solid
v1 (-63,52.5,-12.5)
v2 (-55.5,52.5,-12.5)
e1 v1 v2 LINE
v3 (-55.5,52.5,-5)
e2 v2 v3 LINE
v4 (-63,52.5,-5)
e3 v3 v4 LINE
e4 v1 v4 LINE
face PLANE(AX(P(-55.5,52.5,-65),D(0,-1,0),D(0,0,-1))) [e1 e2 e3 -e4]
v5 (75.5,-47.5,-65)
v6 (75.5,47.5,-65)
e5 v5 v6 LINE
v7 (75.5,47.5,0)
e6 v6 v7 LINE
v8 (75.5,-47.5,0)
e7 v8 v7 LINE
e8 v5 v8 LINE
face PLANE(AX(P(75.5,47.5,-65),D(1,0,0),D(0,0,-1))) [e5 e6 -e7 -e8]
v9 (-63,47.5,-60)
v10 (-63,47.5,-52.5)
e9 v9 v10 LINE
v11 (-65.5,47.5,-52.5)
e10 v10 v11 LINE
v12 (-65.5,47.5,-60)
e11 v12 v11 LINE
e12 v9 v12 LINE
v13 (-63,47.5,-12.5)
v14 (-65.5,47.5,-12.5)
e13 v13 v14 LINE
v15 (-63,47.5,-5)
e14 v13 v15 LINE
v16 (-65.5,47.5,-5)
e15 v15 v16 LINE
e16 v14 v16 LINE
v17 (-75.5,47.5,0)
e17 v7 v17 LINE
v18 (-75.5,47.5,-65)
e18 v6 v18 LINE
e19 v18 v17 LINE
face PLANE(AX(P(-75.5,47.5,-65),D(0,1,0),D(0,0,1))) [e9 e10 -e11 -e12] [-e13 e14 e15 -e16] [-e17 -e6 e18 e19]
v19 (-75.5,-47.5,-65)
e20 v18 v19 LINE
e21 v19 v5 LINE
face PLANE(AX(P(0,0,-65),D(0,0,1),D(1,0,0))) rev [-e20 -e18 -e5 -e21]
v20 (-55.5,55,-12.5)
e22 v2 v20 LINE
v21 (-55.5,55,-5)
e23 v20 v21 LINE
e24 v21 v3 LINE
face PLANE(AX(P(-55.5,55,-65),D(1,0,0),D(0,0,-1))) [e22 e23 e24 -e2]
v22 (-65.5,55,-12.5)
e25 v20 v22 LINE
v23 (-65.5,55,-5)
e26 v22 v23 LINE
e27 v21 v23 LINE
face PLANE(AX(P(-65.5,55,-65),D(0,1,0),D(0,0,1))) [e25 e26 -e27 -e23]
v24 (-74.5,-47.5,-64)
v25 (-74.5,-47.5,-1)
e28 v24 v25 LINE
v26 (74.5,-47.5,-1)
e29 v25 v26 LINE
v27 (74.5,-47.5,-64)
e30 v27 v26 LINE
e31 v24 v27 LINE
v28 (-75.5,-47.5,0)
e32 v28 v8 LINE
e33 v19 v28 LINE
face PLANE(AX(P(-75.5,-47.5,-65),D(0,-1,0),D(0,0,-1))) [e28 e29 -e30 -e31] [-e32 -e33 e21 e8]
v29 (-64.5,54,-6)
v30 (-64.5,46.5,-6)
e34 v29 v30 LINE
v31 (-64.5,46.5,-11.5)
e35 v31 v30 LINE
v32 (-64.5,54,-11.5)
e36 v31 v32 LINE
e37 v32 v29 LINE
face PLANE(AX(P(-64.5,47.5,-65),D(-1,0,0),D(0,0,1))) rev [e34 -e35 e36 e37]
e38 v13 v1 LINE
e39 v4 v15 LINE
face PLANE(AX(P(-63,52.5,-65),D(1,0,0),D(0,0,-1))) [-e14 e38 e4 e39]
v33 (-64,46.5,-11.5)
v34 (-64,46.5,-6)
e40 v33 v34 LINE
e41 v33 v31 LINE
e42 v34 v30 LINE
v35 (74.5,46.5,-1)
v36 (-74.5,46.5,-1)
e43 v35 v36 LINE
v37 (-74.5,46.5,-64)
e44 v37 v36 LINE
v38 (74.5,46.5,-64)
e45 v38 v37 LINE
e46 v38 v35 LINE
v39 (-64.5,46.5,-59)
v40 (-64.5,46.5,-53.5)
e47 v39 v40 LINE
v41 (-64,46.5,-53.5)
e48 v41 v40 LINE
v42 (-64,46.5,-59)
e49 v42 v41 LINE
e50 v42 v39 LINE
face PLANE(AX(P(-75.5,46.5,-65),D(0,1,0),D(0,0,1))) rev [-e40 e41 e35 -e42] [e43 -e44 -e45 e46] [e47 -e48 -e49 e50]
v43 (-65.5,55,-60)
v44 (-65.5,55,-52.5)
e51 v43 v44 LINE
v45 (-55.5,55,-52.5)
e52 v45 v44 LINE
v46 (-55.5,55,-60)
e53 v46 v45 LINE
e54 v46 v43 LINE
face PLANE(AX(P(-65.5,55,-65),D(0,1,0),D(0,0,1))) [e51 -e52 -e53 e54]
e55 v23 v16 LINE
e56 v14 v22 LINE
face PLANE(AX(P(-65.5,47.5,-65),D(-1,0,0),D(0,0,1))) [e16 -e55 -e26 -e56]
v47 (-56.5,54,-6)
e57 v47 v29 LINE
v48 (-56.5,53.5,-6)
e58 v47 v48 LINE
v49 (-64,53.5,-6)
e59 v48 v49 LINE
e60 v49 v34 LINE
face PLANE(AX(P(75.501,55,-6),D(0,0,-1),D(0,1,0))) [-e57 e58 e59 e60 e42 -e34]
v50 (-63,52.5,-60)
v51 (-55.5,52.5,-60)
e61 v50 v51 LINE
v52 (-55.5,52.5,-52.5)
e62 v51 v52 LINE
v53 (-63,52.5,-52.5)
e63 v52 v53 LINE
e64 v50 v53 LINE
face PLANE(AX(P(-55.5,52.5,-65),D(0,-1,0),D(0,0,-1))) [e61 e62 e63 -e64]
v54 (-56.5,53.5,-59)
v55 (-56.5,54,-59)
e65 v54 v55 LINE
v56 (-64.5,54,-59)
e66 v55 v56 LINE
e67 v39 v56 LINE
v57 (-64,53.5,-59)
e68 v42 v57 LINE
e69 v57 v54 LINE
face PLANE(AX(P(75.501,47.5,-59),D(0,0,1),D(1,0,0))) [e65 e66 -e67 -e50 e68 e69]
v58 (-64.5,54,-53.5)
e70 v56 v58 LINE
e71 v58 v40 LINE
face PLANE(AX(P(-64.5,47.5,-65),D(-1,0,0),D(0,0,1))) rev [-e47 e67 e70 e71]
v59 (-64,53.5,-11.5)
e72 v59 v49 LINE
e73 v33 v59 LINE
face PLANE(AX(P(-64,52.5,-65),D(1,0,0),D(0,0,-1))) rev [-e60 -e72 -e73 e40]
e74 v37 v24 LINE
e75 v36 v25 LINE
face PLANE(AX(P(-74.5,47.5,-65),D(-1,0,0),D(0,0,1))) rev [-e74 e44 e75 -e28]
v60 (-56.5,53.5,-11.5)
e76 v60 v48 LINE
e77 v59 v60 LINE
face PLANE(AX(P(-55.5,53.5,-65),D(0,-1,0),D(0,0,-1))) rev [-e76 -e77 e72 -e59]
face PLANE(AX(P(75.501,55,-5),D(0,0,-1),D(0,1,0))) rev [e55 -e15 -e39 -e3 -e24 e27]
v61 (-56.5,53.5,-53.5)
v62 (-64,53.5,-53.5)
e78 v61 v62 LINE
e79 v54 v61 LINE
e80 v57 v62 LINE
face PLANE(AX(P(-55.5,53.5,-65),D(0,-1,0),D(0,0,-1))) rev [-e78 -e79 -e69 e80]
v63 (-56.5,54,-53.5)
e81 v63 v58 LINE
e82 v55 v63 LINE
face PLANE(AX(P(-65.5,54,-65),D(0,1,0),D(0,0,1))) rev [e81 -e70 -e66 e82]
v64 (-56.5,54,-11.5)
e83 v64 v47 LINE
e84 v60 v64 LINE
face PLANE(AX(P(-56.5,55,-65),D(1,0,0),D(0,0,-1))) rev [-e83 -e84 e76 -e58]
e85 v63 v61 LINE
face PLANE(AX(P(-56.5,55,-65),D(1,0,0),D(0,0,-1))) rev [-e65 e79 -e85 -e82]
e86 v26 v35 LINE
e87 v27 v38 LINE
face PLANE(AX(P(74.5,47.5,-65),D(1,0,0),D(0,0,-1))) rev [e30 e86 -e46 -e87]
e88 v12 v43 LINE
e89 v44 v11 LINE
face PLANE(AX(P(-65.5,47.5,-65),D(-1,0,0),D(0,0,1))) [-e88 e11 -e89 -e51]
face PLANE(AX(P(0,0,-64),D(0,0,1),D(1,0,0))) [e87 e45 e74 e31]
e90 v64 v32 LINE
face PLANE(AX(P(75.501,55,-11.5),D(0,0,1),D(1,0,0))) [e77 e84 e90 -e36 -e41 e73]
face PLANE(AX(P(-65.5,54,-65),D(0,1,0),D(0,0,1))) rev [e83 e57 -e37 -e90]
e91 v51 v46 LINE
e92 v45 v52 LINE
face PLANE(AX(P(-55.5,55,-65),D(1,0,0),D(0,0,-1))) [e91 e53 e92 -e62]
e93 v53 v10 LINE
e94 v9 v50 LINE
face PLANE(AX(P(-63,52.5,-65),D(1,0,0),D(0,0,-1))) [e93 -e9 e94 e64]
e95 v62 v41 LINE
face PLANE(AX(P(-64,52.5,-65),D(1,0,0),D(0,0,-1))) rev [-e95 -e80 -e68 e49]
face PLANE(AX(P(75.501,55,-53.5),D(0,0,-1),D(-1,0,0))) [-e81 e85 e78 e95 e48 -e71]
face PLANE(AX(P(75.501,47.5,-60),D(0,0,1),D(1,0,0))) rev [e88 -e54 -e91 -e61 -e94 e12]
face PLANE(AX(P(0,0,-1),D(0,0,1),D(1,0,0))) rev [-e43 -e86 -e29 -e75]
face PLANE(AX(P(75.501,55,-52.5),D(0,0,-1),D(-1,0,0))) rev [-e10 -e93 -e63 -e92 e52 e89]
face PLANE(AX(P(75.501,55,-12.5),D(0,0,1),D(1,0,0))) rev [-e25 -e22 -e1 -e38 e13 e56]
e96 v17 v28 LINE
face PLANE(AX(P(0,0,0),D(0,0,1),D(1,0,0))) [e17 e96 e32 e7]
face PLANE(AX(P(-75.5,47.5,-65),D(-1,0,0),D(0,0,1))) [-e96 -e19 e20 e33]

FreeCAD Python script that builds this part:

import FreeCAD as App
import Part
import Sketcher
Q = App.Units.Quantity


def faces_at(feature, points):
    """Names of the faces that lie closest to the given points."""
    faces = feature.Shape.Faces
    near = lambda p: min(range(len(faces)), key=lambda i: faces[i].distToShape(Part.Vertex(*p))[0])
    return sorted({f"Face{near(p) + 1}" for p in points})

doc = App.newDocument("Part")
body = doc.addObject("PartDesign::Body", "Body")

# Sketch on XY plane
sketch1 = body.newObject("Sketcher::SketchObject", "Sketch")
sketch1.AttachmentSupport = (doc.getObject("XY_Plane"), [""])
sketch1.MapMode = "FlatFace"
sketch1.addGeometry([
    Part.LineSegment(App.Vector(-76, 48, 0), App.Vector(-76, -48, 0)),
    Part.LineSegment(App.Vector(-76, -48, 0), App.Vector(76, -48, 0)),
    Part.LineSegment(App.Vector(76, -48, 0), App.Vector(76, 48, 0)),
    Part.LineSegment(App.Vector(76, 48, 0), App.Vector(-76, 48, 0)),
], False)
sketch1.addConstraint([
    Sketcher.Constraint("Coincident", 0, 2, 1, 1),
    Sketcher.Constraint("Coincident", 1, 2, 2, 1),
    Sketcher.Constraint("Coincident", 2, 2, 3, 1),
    Sketcher.Constraint("Coincident", 3, 2, 0, 1),
    Sketcher.Constraint("Vertical", 0),
    Sketcher.Constraint("Horizontal", 1),
    Sketcher.Constraint("Vertical", 2),
    Sketcher.Constraint("Horizontal", 3),
    Sketcher.Constraint("Symmetric", 0, 2, 2, 2, -1, 1),
    Sketcher.Constraint("DistanceX", 1, 1, 1, 2, Q("151 mm")),
    Sketcher.Constraint("DistanceY", 0, 2, 0, 1, Q("95 mm")),
])
pad1 = body.newObject("PartDesign::Pad", "Pad")
pad1.Profile = sketch1
pad1.Length = 65
pad1.Reversed = True

# Sketch on XY plane
sketch2 = body.newObject("Sketcher::SketchObject", "Sketch001")
sketch2.AttachmentSupport = (doc.getObject("XY_Plane"), [""])
sketch2.MapMode = "FlatFace"
sketch2.addGeometry([
    Part.LineSegment(App.Vector(-65.5, 55, 0), App.Vector(-65.5, 47.5, 0)),  # 0
    Part.LineSegment(App.Vector(-65.5, 47.5, 0), App.Vector(-63, 47.5, 0)),  # 1
    Part.LineSegment(App.Vector(-63, 47.5, 0), App.Vector(-63, 52.5, 0)),  # 2
    Part.LineSegment(App.Vector(-63, 52.5, 0), App.Vector(-55.5, 52.5, 0)),  # 3
    Part.LineSegment(App.Vector(-55.5, 52.5, 0), App.Vector(-55.5, 55, 0)),  # 4
    Part.LineSegment(App.Vector(-55.5, 55, 0), App.Vector(-65.5, 55, 0)),  # 5
], False)
sketch2.addConstraint([
    Sketcher.Constraint("Coincident", 0, 2, 1, 1),
    Sketcher.Constraint("Coincident", 1, 2, 2, 1),
    Sketcher.Constraint("Coincident", 2, 2, 3, 1),
    Sketcher.Constraint("Coincident", 3, 2, 4, 1),
    Sketcher.Constraint("Coincident", 4, 2, 5, 1),
    Sketcher.Constraint("Coincident", 5, 2, 0, 1),
    Sketcher.Constraint("Vertical", 0),
    Sketcher.Constraint("Horizontal", 1),
    Sketcher.Constraint("Vertical", 2),
    Sketcher.Constraint("Horizontal", 3),
    Sketcher.Constraint("Vertical", 4),
    Sketcher.Constraint("Horizontal", 5),
    Sketcher.Constraint("Equal", 3, 0),
    Sketcher.Constraint("Equal", 1, 4),
    Sketcher.Constraint("DistanceX", 5, 2, 5, 1, Q("10 mm")),
    Sketcher.Constraint("DistanceY", 2, 1, 2, 2, Q("5 mm")),
    Sketcher.Constraint("DistanceX", 1, 2, -1, 1, Q("63 mm")),
    Sketcher.Constraint("DistanceY", -1, 1, 4, 2, Q("55 mm")),
])
pad2 = body.newObject("PartDesign::Pad", "Pad001")
pad2.Profile = sketch2
pad2.Length = 65
pad2.Reversed = True

# Sketch on YZ plane
sketch3 = body.newObject("Sketcher::SketchObject", "Sketch002")
sketch3.AttachmentSupport = (doc.getObject("YZ_Plane"), [""])
sketch3.MapMode = "FlatFace"
sketch3.AttachmentOffset = App.Placement(App.Vector(0, 0, -65.5), App.Rotation())
sketch3.addGeometry([
    Part.LineSegment(App.Vector(55, -65, 0), App.Vector(48, -65, 0)),
    Part.LineSegment(App.Vector(48, -65, 0), App.Vector(48, -60, 0)),
    Part.LineSegment(App.Vector(48, -60, 0), App.Vector(55, -60, 0)),
    Part.LineSegment(App.Vector(55, -60, 0), App.Vector(55, -65, 0)),
], False)
sketch3.addConstraint([
    Sketcher.Constraint("Coincident", 0, 2, 1, 1),
    Sketcher.Constraint("Coincident", 1, 2, 2, 1),
    Sketcher.Constraint("Coincident", 2, 2, 3, 1),
    Sketcher.Constraint("Coincident", 3, 2, 0, 1),
    Sketcher.Constraint("Horizontal", 0),
    Sketcher.Constraint("Vertical", 1),
    Sketcher.Constraint("Horizontal", 2),
    Sketcher.Constraint("Vertical", 3),
    Sketcher.Constraint("DistanceY", 1, 1, 1, 2, Q("5 mm")),
    Sketcher.Constraint("DistanceX", 0, 2, 0, 1, Q("7.5 mm")),
    Sketcher.Constraint("DistanceY", 0, 2, -1, 1, Q("65 mm")),
    Sketcher.Constraint("DistanceX", -1, 1, 2, 2, Q("55 mm")),
])
pocket1 = body.newObject("PartDesign::Pocket", "Pocket")
pocket1.Profile = sketch3
pocket1.Length = 10
pocket1.Reversed = True

# Sketch on YZ plane
sketch4 = body.newObject("Sketcher::SketchObject", "Sketch003")
sketch4.AttachmentSupport = (doc.getObject("YZ_Plane"), [""])
sketch4.MapMode = "FlatFace"
sketch4.AttachmentOffset = App.Placement(App.Vector(0, 0, -65.5), App.Rotation())
sketch4.addGeometry([
    Part.LineSegment(App.Vector(55, -52, 0), App.Vector(48, -52, 0)),
    Part.LineSegment(App.Vector(48, -52, 0), App.Vector(48, -12, 0)),
    Part.LineSegment(App.Vector(48, -12, 0), App.Vector(55, -12, 0)),
    Part.LineSegment(App.Vector(55, -12, 0), App.Vector(55, -52, 0)),
], False)
sketch4.addConstraint([
    Sketcher.Constraint("Coincident", 0, 2, 1, 1),
    Sketcher.Constraint("Coincident", 1, 2, 2, 1),
    Sketcher.Constraint("Coincident", 2, 2, 3, 1),
    Sketcher.Constraint("Coincident", 3, 2, 0, 1),
    Sketcher.Constraint("Horizontal", 0),
    Sketcher.Constraint("Vertical", 1),
    Sketcher.Constraint("Horizontal", 2),
    Sketcher.Constraint("Vertical", 3),
    Sketcher.Constraint("DistanceY", 1, 1, 1, 2, Q("40 mm")),
    Sketcher.Constraint("DistanceX", 0, 2, 0, 1, Q("7.5 mm")),
    Sketcher.Constraint("DistanceX", -1, 1, 2, 2, Q("55 mm")),
    Sketcher.Constraint("DistanceY", 0, 2, -1, 1, Q("52.5 mm")),
])
pocket2 = body.newObject("PartDesign::Pocket", "Pocket001")
pocket2.Profile = sketch4
pocket2.Length = 10
pocket2.Reversed = True

# Sketch on YZ plane
sketch5 = body.newObject("Sketcher::SketchObject", "Sketch004")
sketch5.AttachmentSupport = (doc.getObject("YZ_Plane"), [""])
sketch5.MapMode = "FlatFace"
sketch5.AttachmentOffset = App.Placement(App.Vector(0, 0, -65.5), App.Rotation())
sketch5.addGeometry([
    Part.LineSegment(App.Vector(55, -5, 0), App.Vector(48, -5, 0)),
    Part.LineSegment(App.Vector(48, -5, 0), App.Vector(48, 0, 0)),
    Part.LineSegment(App.Vector(48, 0, 0), App.Vector(55, 0, 0)),
    Part.LineSegment(App.Vector(55, 0, 0), App.Vector(55, -5, 0)),
], False)
sketch5.addConstraint([
    Sketcher.Constraint("Coincident", 0, 2, 1, 1),
    Sketcher.Constraint("Coincident", 1, 2, 2, 1),
    Sketcher.Constraint("Coincident", 2, 2, 3, 1),
    Sketcher.Constraint("Coincident", 3, 2, 0, 1),
    Sketcher.Constraint("Horizontal", 0),
    Sketcher.Constraint("Vertical", 1),
    Sketcher.Constraint("Horizontal", 2),
    Sketcher.Constraint("Vertical", 3),
    Sketcher.Constraint("PointOnObject", 1, 2, -1),
    Sketcher.Constraint("DistanceY", 1, 1, 1, 2, Q("5 mm")),
    Sketcher.Constraint("DistanceX", 0, 2, 0, 1, Q("7.5 mm")),
    Sketcher.Constraint("DistanceX", -1, 1, 2, 2, Q("55 mm")),
])
pocket3 = body.newObject("PartDesign::Pocket", "Pocket002")
pocket3.Profile = sketch5
pocket3.Length = 10
pocket3.Reversed = True
doc.recompute()

thickness = body.newObject("PartDesign::Thickness", "Thickness")
thickness.Base = (pocket3, faces_at(pocket3, [(0, -47.5, -32.5)]))
thickness.Value = 1
thickness.Reversed = True
thickness.Join = "Intersection"

doc.recompute()
